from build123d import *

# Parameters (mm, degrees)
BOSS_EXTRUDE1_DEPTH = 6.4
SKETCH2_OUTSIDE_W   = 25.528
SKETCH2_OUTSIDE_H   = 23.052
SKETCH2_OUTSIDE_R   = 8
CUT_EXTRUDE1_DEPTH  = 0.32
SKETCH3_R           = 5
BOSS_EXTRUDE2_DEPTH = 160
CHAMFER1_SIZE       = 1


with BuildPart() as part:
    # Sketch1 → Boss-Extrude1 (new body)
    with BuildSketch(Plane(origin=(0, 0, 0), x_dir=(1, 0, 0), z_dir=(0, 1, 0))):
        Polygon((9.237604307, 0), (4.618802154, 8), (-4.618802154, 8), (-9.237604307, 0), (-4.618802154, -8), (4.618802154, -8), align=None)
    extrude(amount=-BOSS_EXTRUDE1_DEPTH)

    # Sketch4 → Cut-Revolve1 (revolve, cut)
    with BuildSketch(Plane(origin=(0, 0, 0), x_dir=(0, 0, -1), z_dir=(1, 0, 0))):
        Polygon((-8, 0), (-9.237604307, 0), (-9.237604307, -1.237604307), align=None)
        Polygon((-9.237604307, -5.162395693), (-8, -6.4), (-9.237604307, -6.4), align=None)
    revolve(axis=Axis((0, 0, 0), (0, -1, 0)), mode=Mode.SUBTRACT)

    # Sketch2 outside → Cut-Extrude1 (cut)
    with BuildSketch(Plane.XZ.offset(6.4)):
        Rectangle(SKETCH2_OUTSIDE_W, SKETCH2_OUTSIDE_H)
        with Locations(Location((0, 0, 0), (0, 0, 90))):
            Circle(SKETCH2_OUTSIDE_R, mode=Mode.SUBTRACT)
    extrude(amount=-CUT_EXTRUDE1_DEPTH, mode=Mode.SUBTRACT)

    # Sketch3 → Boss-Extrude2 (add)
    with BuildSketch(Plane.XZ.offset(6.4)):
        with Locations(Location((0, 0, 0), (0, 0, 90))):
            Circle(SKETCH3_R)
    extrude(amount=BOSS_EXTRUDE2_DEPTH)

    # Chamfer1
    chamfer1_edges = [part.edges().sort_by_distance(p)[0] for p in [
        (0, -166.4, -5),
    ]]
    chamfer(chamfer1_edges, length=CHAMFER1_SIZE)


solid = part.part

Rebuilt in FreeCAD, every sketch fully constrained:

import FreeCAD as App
import Part
import Sketcher
from FreeCAD import Vector
Q = App.Units.Quantity


def edges_at(feature, points):
    """Names of the edges that pass closest to the given points."""
    edges = feature.Shape.Edges
    near = lambda p: min(range(len(edges)), key=lambda i: edges[i].distToShape(Part.Vertex(*p))[0])
    return sorted({f"Edge{near(p) + 1}" for p in points})

doc = App.newDocument("Part")
body = doc.addObject("PartDesign::Body", "Body")

# Sketch on XZ plane
sketch1 = body.newObject("Sketcher::SketchObject", "Sketch")
sketch1.AttachmentSupport = (doc.getObject("XZ_Plane"), [""])
sketch1.MapMode = "FlatFace"
sketch1.addGeometry(Part.LineSegment(Vector(9.237604, 0, 0), Vector(4.618802, -8, 0)), False)
sketch1.addGeometry(Part.LineSegment(Vector(4.618802, -8, 0), Vector(-4.618802, -8, 0)), False)
sketch1.addGeometry(Part.LineSegment(Vector(-4.618802, -8, 0), Vector(-9.237604, 0, 0)), False)
sketch1.addGeometry(Part.LineSegment(Vector(-9.237604, 0, 0), Vector(-4.618802, 8, 0)), False)
sketch1.addGeometry(Part.LineSegment(Vector(-4.618802, 8, 0), Vector(4.618802, 8, 0)), False)
sketch1.addGeometry(Part.LineSegment(Vector(4.618802, 8, 0), Vector(9.237604, 0, 0)), False)
sketch1.addConstraint(Sketcher.Constraint("Coincident", 0, 2, 1, 1))
sketch1.addConstraint(Sketcher.Constraint("Coincident", 1, 2, 2, 1))
sketch1.addConstraint(Sketcher.Constraint("Coincident", 2, 2, 3, 1))
sketch1.addConstraint(Sketcher.Constraint("Coincident", 3, 2, 4, 1))
sketch1.addConstraint(Sketcher.Constraint("Coincident", 4, 2, 5, 1))
sketch1.addConstraint(Sketcher.Constraint("Coincident", 5, 2, 0, 1))
sketch1.addConstraint(Sketcher.Constraint("Horizontal", 1))
sketch1.addConstraint(Sketcher.Constraint("Horizontal", 4))
sketch1.addConstraint(Sketcher.Constraint("Symmetric", 0, 2, 3, 2, -1, 1))
sketch1.addConstraint(Sketcher.Constraint("Symmetric", 2, 2, 5, 2, -1, 1))
sketch1.addConstraint(Sketcher.Constraint("PointOnObject", 2, 2, -1))
sketch1.addConstraint(Sketcher.Constraint("Parallel", 2, 5))
sketch1.addConstraint(Sketcher.Constraint("Vertical", 1, 2, 3, 2))
sketch1.addConstraint(Sketcher.Constraint("Angle", 0, Q("-120 deg")))
sketch1.addConstraint(Sketcher.Constraint("DistanceY", 0, 2, -1, 1, Q("8 mm")))
sketch1.addConstraint(Sketcher.Constraint("DistanceX", 1, 2, 1, 1, Q("9.237604 mm")))
pad1 = body.newObject("PartDesign::Pad", "Pad")
pad1.Profile = sketch1
pad1.Length = 6.4

# Sketch on YZ plane
sketch2 = body.newObject("Sketcher::SketchObject", "Sketch001")
sketch2.AttachmentSupport = (doc.getObject("YZ_Plane"), [""])
sketch2.MapMode = "FlatFace"
sketch2.addGeometry(Part.LineSegment(Vector(0, 8, 0), Vector(0, 9.237604, 0)), False)
sketch2.addGeometry(Part.LineSegment(Vector(0, 9.237604, 0), Vector(-1.237604, 9.237604, 0)), False)
sketch2.addGeometry(Part.LineSegment(Vector(-1.237604, 9.237604, 0), Vector(0, 8, 0)), False)
sketch2.addGeometry(Part.LineSegment(Vector(-6.4, 8, 0), Vector(-5.162396, 9.237604, 0)), False)
sketch2.addGeometry(Part.LineSegment(Vector(-5.162396, 9.237604, 0), Vector(-6.4, 9.237604, 0)), False)
sketch2.addGeometry(Part.LineSegment(Vector(-6.4, 9.237604, 0), Vector(-6.4, 8, 0)), False)
sketch2.addConstraint(Sketcher.Constraint("Coincident", 0, 2, 1, 1))
sketch2.addConstraint(Sketcher.Constraint("Coincident", 1, 2, 2, 1))
sketch2.addConstraint(Sketcher.Constraint("Coincident", 2, 2, 0, 1))
sketch2.addConstraint(Sketcher.Constraint("Coincident", 3, 2, 4, 1))
sketch2.addConstraint(Sketcher.Constraint("Coincident", 4, 2, 5, 1))
sketch2.addConstraint(Sketcher.Constraint("Coincident", 5, 2, 3, 1))
sketch2.addConstraint(Sketcher.Constraint("Vertical", 0))
sketch2.addConstraint(Sketcher.Constraint("Horizontal", 1))
sketch2.addConstraint(Sketcher.Constraint("Horizontal", 4))
sketch2.addConstraint(Sketcher.Constraint("Vertical", 5))
sketch2.addConstraint(Sketcher.Constraint("PointOnObject", 0, 2, -2))
sketch2.addConstraint(Sketcher.Constraint("Perpendicular", 2, 3))
sketch2.addConstraint(Sketcher.Constraint("Horizontal", 1, 2, 3, 2))
sketch2.addConstraint(Sketcher.Constraint("Horizontal", 2, 2, 5, 2))
sketch2.addConstraint(Sketcher.Constraint("Equal", 1, 4))
sketch2.addConstraint(Sketcher.Constraint("DistanceY", -1, 1, 2, 2, Q("8 mm")))
sketch2.addConstraint(Sketcher.Constraint("DistanceX", 4, 2, -1, 1, Q("6.4 mm")))
sketch2.addConstraint(Sketcher.Constraint("DistanceX", 1, 2, 1, 1, Q("1.237604 mm")))
groove = body.newObject("PartDesign::Groove", "Groove")
groove.Profile = sketch2
groove.ReferenceAxis = (sketch2, ["H_Axis"])
groove.Angle = 360

# Sketch on XZ plane
sketch3 = body.newObject("Sketcher::SketchObject", "Sketch002")
sketch3.AttachmentSupport = (doc.getObject("XZ_Plane"), [""])
sketch3.MapMode = "FlatFace"
sketch3.AttachmentOffset = App.Placement(Vector(0, 0, 6.4), App.Rotation())
sketch3.addGeometry(Part.LineSegment(Vector(-12.764, 11.526, 0), Vector(-12.764, -11.526, 0)), False)
sketch3.addGeometry(Part.LineSegment(Vector(-12.764, -11.526, 0), Vector(12.764, -11.526, 0)), False)
sketch3.addGeometry(Part.LineSegment(Vector(12.764, -11.526, 0), Vector(12.764, 11.526, 0)), False)
sketch3.addGeometry(Part.LineSegment(Vector(12.764, 11.526, 0), Vector(-12.764, 11.526, 0)), False)
sketch3.addGeometry(Part.Circle(Vector(0, 0, 0), Vector(0, 0, 1), 8), False)
sketch3.addConstraint(Sketcher.Constraint("Coincident", 0, 2, 1, 1))
sketch3.addConstraint(Sketcher.Constraint("Coincident", 1, 2, 2, 1))
sketch3.addConstraint(Sketcher.Constraint("Coincident", 2, 2, 3, 1))
sketch3.addConstraint(Sketcher.Constraint("Coincident", 3, 2, 0, 1))
sketch3.addConstraint(Sketcher.Constraint("Vertical", 0))
sketch3.addConstraint(Sketcher.Constraint("Horizontal", 1))
sketch3.addConstraint(Sketcher.Constraint("Vertical", 2))
sketch3.addConstraint(Sketcher.Constraint("Horizontal", 3))
sketch3.addConstraint(Sketcher.Constraint("Coincident", 4, 3, -1, 1))
sketch3.addConstraint(Sketcher.Constraint("Symmetric", 0, 2, 2, 2, -1, 1))
sketch3.addConstraint(Sketcher.Constraint("Diameter", 4, Q("16 mm")))
sketch3.addConstraint(Sketcher.Constraint("DistanceX", 1, 1, 1, 2, Q("25.528 mm")))
sketch3.addConstraint(Sketcher.Constraint("DistanceY", 0, 2, 0, 1, Q("23.052 mm")))
pocket1 = body.newObject("PartDesign::Pocket", "Pocket")
pocket1.Profile = sketch3
pocket1.Length = 0.32

# Sketch on XZ plane
sketch4 = body.newObject("Sketcher::SketchObject", "Sketch003")
sketch4.AttachmentSupport = (doc.getObject("XZ_Plane"), [""])
sketch4.MapMode = "FlatFace"
sketch4.AttachmentOffset = App.Placement(Vector(0, 0, 6.4), App.Rotation())
sketch4.addGeometry(Part.Circle(Vector(0, 0, 0), Vector(0, 0, 1), 5), False)
sketch4.addConstraint(Sketcher.Constraint("Coincident", 0, 3, -1, 1))
sketch4.addConstraint(Sketcher.Constraint("Diameter", 0, Q("10 mm")))
pad2 = body.newObject("PartDesign::Pad", "Pad001")
pad2.Profile = sketch4
pad2.Length = 160
doc.recompute()

chamfer = body.newObject("PartDesign::Chamfer", "Chamfer")
chamfer.Base = (pad2, edges_at(pad2, [(0, -166.4, -5)]))
chamfer.Size = 1

doc.recompute()
